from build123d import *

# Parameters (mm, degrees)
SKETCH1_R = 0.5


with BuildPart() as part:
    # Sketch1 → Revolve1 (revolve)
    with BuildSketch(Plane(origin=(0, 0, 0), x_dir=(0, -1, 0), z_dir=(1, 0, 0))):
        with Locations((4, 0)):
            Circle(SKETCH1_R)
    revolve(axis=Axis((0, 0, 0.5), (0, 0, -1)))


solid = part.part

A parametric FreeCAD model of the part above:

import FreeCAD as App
import Part
import Sketcher

V = App.Vector
Q = App.Units.Quantity

doc = App.newDocument("Part")
body = doc.addObject("PartDesign::Body", "Body")

sketch1 = body.newObject("Sketcher::SketchObject", "Sketch")
sketch1.AttachmentSupport = (doc.getObject("YZ_Plane"), [""])
sketch1.MapMode = "FlatFace"
sketch1.addGeometry(Part.Circle(V(-4, 0, 0), V(0, 0, 1), 0.5), False)
sketch1.addConstraint([
    Sketcher.Constraint("PointOnObject", 0, 3, -1),
    Sketcher.Constraint("Diameter", 0, Q("1 mm")),
    Sketcher.Constraint("DistanceX", 0, 3, -1, 1, Q("4 mm")),
])
revolution = body.newObject("PartDesign::Revolution", "Revolution")
revolution.Profile = sketch1
revolution.ReferenceAxis = (sketch1, ["V_Axis"])
revolution.Angle = 360

doc.recompute()
